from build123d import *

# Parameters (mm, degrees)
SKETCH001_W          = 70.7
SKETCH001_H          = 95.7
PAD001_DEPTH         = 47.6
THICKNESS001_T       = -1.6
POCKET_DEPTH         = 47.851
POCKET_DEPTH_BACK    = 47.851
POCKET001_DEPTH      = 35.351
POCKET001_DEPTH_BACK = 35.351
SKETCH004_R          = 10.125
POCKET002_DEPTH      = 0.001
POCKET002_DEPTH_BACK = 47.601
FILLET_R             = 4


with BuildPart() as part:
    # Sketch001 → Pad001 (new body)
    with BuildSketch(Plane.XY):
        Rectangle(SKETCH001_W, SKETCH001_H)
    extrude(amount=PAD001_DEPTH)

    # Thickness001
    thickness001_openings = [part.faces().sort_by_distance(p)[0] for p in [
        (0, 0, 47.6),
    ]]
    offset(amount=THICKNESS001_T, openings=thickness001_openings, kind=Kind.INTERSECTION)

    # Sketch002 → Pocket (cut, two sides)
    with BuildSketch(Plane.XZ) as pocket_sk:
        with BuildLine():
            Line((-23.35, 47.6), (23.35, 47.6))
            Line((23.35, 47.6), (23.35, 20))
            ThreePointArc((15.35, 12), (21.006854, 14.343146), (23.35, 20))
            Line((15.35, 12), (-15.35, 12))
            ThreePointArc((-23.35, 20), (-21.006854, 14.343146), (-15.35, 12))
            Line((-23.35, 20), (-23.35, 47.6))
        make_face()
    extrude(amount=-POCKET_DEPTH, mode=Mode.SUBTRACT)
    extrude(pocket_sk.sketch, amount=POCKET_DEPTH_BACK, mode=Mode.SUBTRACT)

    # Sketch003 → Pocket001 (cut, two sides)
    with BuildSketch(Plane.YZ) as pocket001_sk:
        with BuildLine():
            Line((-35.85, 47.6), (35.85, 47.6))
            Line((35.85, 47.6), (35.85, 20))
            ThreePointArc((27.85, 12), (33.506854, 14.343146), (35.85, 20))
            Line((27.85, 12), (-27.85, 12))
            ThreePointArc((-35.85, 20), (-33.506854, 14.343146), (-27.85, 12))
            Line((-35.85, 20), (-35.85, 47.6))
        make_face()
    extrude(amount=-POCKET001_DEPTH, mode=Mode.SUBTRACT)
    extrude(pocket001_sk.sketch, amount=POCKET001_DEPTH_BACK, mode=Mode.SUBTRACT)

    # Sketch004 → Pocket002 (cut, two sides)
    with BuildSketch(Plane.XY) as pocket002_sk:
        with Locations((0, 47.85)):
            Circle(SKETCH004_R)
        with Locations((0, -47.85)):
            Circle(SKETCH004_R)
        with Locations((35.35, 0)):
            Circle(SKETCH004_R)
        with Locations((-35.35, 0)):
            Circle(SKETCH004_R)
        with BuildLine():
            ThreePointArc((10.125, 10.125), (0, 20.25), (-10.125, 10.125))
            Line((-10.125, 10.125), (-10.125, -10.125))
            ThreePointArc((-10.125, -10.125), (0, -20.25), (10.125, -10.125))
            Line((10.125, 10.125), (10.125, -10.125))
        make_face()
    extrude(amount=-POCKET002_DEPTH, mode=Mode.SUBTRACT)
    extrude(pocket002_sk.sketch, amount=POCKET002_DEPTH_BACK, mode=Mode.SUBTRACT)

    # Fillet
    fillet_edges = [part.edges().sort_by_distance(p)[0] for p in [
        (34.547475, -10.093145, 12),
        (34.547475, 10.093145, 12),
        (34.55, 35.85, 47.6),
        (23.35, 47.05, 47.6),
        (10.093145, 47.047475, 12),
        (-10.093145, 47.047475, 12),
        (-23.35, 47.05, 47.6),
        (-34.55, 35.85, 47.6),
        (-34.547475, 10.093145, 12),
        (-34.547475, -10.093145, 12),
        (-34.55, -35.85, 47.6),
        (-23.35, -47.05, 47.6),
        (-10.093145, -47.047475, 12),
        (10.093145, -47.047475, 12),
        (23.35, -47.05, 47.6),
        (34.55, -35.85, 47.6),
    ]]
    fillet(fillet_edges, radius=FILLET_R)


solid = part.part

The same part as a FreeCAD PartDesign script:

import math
import FreeCAD as App
import Part
import Sketcher
Q = App.Units.Quantity


def edges_at(feature, points):
    """Names of the edges that pass closest to the given points."""
    edges = feature.Shape.Edges
    near = lambda p: min(range(len(edges)), key=lambda i: edges[i].distToShape(Part.Vertex(*p))[0])
    return sorted({f"Edge{near(p) + 1}" for p in points})


def faces_at(feature, points):
    """Names of the faces that lie closest to the given points."""
    faces = feature.Shape.Faces
    near = lambda p: min(range(len(faces)), key=lambda i: faces[i].distToShape(Part.Vertex(*p))[0])
    return sorted({f"Face{near(p) + 1}" for p in points})


def add_polygon(sketch, points):
    """Adds a closed chain of lines whose ends are joined by coincident constraints."""
    first, n = sketch.GeometryCount, len(points)
    for a, b in zip(points, points[1:] + points[:1]):
        sketch.addGeometry(Part.LineSegment(App.Vector(*a, 0), App.Vector(*b, 0)), False)
    for i in range(n):
        sketch.addConstraint(Sketcher.Constraint("Coincident", first + i, 2, first + (i + 1) % n, 1))

doc = App.newDocument("Part")
body = doc.addObject("PartDesign::Body", "Body")

sketch1 = body.newObject("Sketcher::SketchObject", "Sketch")
sketch1.AttachmentSupport = (doc.getObject("XY_Plane"), [""])
sketch1.MapMode = "FlatFace"
add_polygon(sketch1, [(-35.35, 47.85), (-35.35, -47.85), (35.35, -47.85), (35.35, 47.85)])
sketch1.addConstraint([
    Sketcher.Constraint("Vertical", 0),
    Sketcher.Constraint("Horizontal", 1),
    Sketcher.Constraint("Vertical", 2),
    Sketcher.Constraint("Horizontal", 3),
    Sketcher.Constraint("Symmetric", 0, 2, 2, 2, -1, 1),
    Sketcher.Constraint("DistanceX", 1, 1, 1, 2, Q("70.7 mm")),
    Sketcher.Constraint("DistanceY", 0, 2, 0, 1, Q("95.7 mm")),
])
pad1 = body.newObject("PartDesign::Pad", "Pad")
pad1.Profile = sketch1
pad1.Length = 47.6
doc.recompute()

thickness = body.newObject("PartDesign::Thickness", "Thickness")
thickness.Base = (pad1, faces_at(pad1, [(0, 0, 47.6)]))
thickness.Value = 1.6
thickness.Reversed = True
thickness.Join = "Intersection"

sketch2 = body.newObject("Sketcher::SketchObject", "Sketch001")
sketch2.AttachmentSupport = (doc.getObject("XZ_Plane"), [""])
sketch2.MapMode = "FlatFace"
sketch2.addGeometry([
    Part.LineSegment(App.Vector(23.35, 47.6, 0), App.Vector(-23.35, 47.6, 0)),
    Part.LineSegment(App.Vector(-23.35, 47.6, 0), App.Vector(-23.35, 20, 0)),
    Part.ArcOfCircle(Part.Circle(App.Vector(-15.349999, 20.000001, 0), App.Vector(0, 0, 1), 8.000001), math.radians(-179.999994), math.radians(-90.000006)),
    Part.LineSegment(App.Vector(-15.35, 12, 0), App.Vector(15.35, 12, 0)),
    Part.ArcOfCircle(Part.Circle(App.Vector(15.349999, 20.000001, 0), App.Vector(0, 0, 1), 8.000001), math.radians(-89.999994), math.radians(-0.000006)),
    Part.LineSegment(App.Vector(23.35, 20, 0), App.Vector(23.35, 47.6, 0)),
], False)
sketch2.addConstraint([
    Sketcher.Constraint("Coincident", 0, 2, 1, 1),
    Sketcher.Constraint("Tangent", 1, 2, 2, 1),
    Sketcher.Constraint("Tangent", 2, 2, 3, 1),
    Sketcher.Constraint("Tangent", 3, 2, 4, 1),
    Sketcher.Constraint("Tangent", 4, 2, 5, 1),
    Sketcher.Constraint("Coincident", 5, 2, 0, 1),
    Sketcher.Constraint("Horizontal", 0),
    Sketcher.Constraint("Vertical", 1),
    Sketcher.Constraint("Horizontal", 3),
    Sketcher.Constraint("Vertical", 5),
    Sketcher.Constraint("Equal", 2, 4),
    Sketcher.Constraint("Radius", 2, Q("8.000001 mm")),
    Sketcher.Constraint("DistanceX", 0, 2, 0, 1, Q("46.7 mm")),
    Sketcher.Constraint("DistanceY", 1, 2, 1, 1, Q("27.6 mm")),
    Sketcher.Constraint("DistanceY", -1, 1, 2, 3, Q("20.000001 mm")),
    Sketcher.Constraint("DistanceX", 2, 3, -1, 1, Q("15.349999 mm")),
])
pocket1 = body.newObject("PartDesign::Pocket", "Pocket")
pocket1.Profile = sketch2
pocket1.Type = "ThroughAll"
pocket1.Midplane = True

sketch3 = body.newObject("Sketcher::SketchObject", "Sketch002")
sketch3.AttachmentSupport = (doc.getObject("YZ_Plane"), [""])
sketch3.MapMode = "FlatFace"
sketch3.addGeometry([
    Part.LineSegment(App.Vector(35.85, 47.6, 0), App.Vector(-35.85, 47.6, 0)),
    Part.LineSegment(App.Vector(-35.85, 47.6, 0), App.Vector(-35.85, 20, 0)),
    Part.ArcOfCircle(Part.Circle(App.Vector(-27.849999, 20.000001, 0), App.Vector(0, 0, 1), 8.000001), math.radians(-179.999994), math.radians(-90.000006)),
    Part.LineSegment(App.Vector(-27.85, 12, 0), App.Vector(27.85, 12, 0)),
    Part.ArcOfCircle(Part.Circle(App.Vector(27.849999, 20.000001, 0), App.Vector(0, 0, 1), 8.000001), math.radians(-89.999994), math.radians(-0.000006)),
    Part.LineSegment(App.Vector(35.85, 20, 0), App.Vector(35.85, 47.6, 0)),
], False)
sketch3.addConstraint([
    Sketcher.Constraint("Coincident", 0, 2, 1, 1),
    Sketcher.Constraint("Tangent", 1, 2, 2, 1),
    Sketcher.Constraint("Tangent", 2, 2, 3, 1),
    Sketcher.Constraint("Tangent", 3, 2, 4, 1),
    Sketcher.Constraint("Tangent", 4, 2, 5, 1),
    Sketcher.Constraint("Coincident", 5, 2, 0, 1),
    Sketcher.Constraint("Horizontal", 0),
    Sketcher.Constraint("Vertical", 1),
    Sketcher.Constraint("Horizontal", 3),
    Sketcher.Constraint("Vertical", 5),
    Sketcher.Constraint("Equal", 2, 4),
    Sketcher.Constraint("Radius", 2, Q("8.000001 mm")),
    Sketcher.Constraint("DistanceX", 0, 2, 0, 1, Q("71.7 mm")),
    Sketcher.Constraint("DistanceY", 1, 2, 1, 1, Q("27.6 mm")),
    Sketcher.Constraint("DistanceY", -1, 1, 2, 3, Q("20.000001 mm")),
    Sketcher.Constraint("DistanceX", 2, 3, -1, 1, Q("27.849999 mm")),
])
pocket2 = body.newObject("PartDesign::Pocket", "Pocket001")
pocket2.Profile = sketch3
pocket2.Type = "ThroughAll"
pocket2.Midplane = True

sketch4 = body.newObject("Sketcher::SketchObject", "Sketch003")
sketch4.AttachmentSupport = (doc.getObject("XY_Plane"), [""])
sketch4.MapMode = "FlatFace"
sketch4.addGeometry([
    Part.Circle(App.Vector(0, 47.85, 0), App.Vector(0, 0, 1), 10.125),
    Part.Circle(App.Vector(0, -47.85, 0), App.Vector(0, 0, 1), 10.125),
    Part.Circle(App.Vector(35.35, 0, 0), App.Vector(0, 0, 1), 10.125),
    Part.Circle(App.Vector(-35.35, 0, 0), App.Vector(0, 0, 1), 10.125),
    Part.ArcOfCircle(Part.Circle(App.Vector(0, 10.125, 0), App.Vector(0, 0, 1), 10.125), math.radians(0), math.radians(180)),
    Part.LineSegment(App.Vector(-10.125, 10.125, 0), App.Vector(-10.125, -10.125, 0)),
    Part.ArcOfCircle(Part.Circle(App.Vector(0, -10.125, 0), App.Vector(0, 0, 1), 10.125), math.radians(180), math.radians(360)),
    Part.LineSegment(App.Vector(10.125, -10.125, 0), App.Vector(10.125, 10.125, 0)),
], False)
sketch4.addConstraint([
    Sketcher.Constraint("Tangent", 4, 2, 5, 1),
    Sketcher.Constraint("Tangent", 5, 2, 6, 1),
    Sketcher.Constraint("Tangent", 6, 2, 7, 1),
    Sketcher.Constraint("Tangent", 7, 2, 4, 1),
    Sketcher.Constraint("Vertical", 5),
    Sketcher.Constraint("Vertical", 7),
    Sketcher.Constraint("Equal", 0, 1),
    Sketcher.Constraint("Equal", 1, 2),
    Sketcher.Constraint("Equal", 2, 3),
    Sketcher.Constraint("Equal", 3, 4),
    Sketcher.Constraint("Symmetric", 0, 3, 1, 3, -1, 1),
    Sketcher.Constraint("Symmetric", 2, 3, 3, 3, -1, 1),
    Sketcher.Constraint("Symmetric", 4, 3, 6, 3, -1, 1),
    Sketcher.Constraint("PointOnObject", 0, 3, -2),
    Sketcher.Constraint("PointOnObject", 2, 3, -1),
    Sketcher.Constraint("Diameter", 0, Q("20.25 mm")),
    Sketcher.Constraint("DistanceY", 5, 2, 5, 1, Q("20.25 mm")),
    Sketcher.Constraint("DistanceY", 1, 3, 0, 3, Q("95.7 mm")),
    Sketcher.Constraint("DistanceX", 3, 3, 2, 3, Q("70.7 mm")),
])
pocket3 = body.newObject("PartDesign::Pocket", "Pocket002")
pocket3.Profile = sketch4
pocket3.Type = "ThroughAll"
pocket3.Midplane = True
doc.recompute()

fillet = body.newObject("PartDesign::Fillet", "Fillet")
fillet.Base = (pocket3, edges_at(pocket3, [
    (34.547, -10.093, 12),
    (34.547, 10.093, 12),
    (34.55, 35.85, 47.6),
    (23.35, 47.05, 47.6),
    (10.093, 47.047, 12),
    (-10.093, 47.047, 12),
    (-23.35, 47.05, 47.6),
    (-34.55, 35.85, 47.6),
    (-34.547, 10.093, 12),
    (-34.547, -10.093, 12),
    (-34.55, -35.85, 47.6),
    (-23.35, -47.05, 47.6),
    (-10.093, -47.047, 12),
    (10.093, -47.047, 12),
    (23.35, -47.05, 47.6),
    (34.55, -35.85, 47.6),
]))
fillet.Radius = 4

doc.recompute()
